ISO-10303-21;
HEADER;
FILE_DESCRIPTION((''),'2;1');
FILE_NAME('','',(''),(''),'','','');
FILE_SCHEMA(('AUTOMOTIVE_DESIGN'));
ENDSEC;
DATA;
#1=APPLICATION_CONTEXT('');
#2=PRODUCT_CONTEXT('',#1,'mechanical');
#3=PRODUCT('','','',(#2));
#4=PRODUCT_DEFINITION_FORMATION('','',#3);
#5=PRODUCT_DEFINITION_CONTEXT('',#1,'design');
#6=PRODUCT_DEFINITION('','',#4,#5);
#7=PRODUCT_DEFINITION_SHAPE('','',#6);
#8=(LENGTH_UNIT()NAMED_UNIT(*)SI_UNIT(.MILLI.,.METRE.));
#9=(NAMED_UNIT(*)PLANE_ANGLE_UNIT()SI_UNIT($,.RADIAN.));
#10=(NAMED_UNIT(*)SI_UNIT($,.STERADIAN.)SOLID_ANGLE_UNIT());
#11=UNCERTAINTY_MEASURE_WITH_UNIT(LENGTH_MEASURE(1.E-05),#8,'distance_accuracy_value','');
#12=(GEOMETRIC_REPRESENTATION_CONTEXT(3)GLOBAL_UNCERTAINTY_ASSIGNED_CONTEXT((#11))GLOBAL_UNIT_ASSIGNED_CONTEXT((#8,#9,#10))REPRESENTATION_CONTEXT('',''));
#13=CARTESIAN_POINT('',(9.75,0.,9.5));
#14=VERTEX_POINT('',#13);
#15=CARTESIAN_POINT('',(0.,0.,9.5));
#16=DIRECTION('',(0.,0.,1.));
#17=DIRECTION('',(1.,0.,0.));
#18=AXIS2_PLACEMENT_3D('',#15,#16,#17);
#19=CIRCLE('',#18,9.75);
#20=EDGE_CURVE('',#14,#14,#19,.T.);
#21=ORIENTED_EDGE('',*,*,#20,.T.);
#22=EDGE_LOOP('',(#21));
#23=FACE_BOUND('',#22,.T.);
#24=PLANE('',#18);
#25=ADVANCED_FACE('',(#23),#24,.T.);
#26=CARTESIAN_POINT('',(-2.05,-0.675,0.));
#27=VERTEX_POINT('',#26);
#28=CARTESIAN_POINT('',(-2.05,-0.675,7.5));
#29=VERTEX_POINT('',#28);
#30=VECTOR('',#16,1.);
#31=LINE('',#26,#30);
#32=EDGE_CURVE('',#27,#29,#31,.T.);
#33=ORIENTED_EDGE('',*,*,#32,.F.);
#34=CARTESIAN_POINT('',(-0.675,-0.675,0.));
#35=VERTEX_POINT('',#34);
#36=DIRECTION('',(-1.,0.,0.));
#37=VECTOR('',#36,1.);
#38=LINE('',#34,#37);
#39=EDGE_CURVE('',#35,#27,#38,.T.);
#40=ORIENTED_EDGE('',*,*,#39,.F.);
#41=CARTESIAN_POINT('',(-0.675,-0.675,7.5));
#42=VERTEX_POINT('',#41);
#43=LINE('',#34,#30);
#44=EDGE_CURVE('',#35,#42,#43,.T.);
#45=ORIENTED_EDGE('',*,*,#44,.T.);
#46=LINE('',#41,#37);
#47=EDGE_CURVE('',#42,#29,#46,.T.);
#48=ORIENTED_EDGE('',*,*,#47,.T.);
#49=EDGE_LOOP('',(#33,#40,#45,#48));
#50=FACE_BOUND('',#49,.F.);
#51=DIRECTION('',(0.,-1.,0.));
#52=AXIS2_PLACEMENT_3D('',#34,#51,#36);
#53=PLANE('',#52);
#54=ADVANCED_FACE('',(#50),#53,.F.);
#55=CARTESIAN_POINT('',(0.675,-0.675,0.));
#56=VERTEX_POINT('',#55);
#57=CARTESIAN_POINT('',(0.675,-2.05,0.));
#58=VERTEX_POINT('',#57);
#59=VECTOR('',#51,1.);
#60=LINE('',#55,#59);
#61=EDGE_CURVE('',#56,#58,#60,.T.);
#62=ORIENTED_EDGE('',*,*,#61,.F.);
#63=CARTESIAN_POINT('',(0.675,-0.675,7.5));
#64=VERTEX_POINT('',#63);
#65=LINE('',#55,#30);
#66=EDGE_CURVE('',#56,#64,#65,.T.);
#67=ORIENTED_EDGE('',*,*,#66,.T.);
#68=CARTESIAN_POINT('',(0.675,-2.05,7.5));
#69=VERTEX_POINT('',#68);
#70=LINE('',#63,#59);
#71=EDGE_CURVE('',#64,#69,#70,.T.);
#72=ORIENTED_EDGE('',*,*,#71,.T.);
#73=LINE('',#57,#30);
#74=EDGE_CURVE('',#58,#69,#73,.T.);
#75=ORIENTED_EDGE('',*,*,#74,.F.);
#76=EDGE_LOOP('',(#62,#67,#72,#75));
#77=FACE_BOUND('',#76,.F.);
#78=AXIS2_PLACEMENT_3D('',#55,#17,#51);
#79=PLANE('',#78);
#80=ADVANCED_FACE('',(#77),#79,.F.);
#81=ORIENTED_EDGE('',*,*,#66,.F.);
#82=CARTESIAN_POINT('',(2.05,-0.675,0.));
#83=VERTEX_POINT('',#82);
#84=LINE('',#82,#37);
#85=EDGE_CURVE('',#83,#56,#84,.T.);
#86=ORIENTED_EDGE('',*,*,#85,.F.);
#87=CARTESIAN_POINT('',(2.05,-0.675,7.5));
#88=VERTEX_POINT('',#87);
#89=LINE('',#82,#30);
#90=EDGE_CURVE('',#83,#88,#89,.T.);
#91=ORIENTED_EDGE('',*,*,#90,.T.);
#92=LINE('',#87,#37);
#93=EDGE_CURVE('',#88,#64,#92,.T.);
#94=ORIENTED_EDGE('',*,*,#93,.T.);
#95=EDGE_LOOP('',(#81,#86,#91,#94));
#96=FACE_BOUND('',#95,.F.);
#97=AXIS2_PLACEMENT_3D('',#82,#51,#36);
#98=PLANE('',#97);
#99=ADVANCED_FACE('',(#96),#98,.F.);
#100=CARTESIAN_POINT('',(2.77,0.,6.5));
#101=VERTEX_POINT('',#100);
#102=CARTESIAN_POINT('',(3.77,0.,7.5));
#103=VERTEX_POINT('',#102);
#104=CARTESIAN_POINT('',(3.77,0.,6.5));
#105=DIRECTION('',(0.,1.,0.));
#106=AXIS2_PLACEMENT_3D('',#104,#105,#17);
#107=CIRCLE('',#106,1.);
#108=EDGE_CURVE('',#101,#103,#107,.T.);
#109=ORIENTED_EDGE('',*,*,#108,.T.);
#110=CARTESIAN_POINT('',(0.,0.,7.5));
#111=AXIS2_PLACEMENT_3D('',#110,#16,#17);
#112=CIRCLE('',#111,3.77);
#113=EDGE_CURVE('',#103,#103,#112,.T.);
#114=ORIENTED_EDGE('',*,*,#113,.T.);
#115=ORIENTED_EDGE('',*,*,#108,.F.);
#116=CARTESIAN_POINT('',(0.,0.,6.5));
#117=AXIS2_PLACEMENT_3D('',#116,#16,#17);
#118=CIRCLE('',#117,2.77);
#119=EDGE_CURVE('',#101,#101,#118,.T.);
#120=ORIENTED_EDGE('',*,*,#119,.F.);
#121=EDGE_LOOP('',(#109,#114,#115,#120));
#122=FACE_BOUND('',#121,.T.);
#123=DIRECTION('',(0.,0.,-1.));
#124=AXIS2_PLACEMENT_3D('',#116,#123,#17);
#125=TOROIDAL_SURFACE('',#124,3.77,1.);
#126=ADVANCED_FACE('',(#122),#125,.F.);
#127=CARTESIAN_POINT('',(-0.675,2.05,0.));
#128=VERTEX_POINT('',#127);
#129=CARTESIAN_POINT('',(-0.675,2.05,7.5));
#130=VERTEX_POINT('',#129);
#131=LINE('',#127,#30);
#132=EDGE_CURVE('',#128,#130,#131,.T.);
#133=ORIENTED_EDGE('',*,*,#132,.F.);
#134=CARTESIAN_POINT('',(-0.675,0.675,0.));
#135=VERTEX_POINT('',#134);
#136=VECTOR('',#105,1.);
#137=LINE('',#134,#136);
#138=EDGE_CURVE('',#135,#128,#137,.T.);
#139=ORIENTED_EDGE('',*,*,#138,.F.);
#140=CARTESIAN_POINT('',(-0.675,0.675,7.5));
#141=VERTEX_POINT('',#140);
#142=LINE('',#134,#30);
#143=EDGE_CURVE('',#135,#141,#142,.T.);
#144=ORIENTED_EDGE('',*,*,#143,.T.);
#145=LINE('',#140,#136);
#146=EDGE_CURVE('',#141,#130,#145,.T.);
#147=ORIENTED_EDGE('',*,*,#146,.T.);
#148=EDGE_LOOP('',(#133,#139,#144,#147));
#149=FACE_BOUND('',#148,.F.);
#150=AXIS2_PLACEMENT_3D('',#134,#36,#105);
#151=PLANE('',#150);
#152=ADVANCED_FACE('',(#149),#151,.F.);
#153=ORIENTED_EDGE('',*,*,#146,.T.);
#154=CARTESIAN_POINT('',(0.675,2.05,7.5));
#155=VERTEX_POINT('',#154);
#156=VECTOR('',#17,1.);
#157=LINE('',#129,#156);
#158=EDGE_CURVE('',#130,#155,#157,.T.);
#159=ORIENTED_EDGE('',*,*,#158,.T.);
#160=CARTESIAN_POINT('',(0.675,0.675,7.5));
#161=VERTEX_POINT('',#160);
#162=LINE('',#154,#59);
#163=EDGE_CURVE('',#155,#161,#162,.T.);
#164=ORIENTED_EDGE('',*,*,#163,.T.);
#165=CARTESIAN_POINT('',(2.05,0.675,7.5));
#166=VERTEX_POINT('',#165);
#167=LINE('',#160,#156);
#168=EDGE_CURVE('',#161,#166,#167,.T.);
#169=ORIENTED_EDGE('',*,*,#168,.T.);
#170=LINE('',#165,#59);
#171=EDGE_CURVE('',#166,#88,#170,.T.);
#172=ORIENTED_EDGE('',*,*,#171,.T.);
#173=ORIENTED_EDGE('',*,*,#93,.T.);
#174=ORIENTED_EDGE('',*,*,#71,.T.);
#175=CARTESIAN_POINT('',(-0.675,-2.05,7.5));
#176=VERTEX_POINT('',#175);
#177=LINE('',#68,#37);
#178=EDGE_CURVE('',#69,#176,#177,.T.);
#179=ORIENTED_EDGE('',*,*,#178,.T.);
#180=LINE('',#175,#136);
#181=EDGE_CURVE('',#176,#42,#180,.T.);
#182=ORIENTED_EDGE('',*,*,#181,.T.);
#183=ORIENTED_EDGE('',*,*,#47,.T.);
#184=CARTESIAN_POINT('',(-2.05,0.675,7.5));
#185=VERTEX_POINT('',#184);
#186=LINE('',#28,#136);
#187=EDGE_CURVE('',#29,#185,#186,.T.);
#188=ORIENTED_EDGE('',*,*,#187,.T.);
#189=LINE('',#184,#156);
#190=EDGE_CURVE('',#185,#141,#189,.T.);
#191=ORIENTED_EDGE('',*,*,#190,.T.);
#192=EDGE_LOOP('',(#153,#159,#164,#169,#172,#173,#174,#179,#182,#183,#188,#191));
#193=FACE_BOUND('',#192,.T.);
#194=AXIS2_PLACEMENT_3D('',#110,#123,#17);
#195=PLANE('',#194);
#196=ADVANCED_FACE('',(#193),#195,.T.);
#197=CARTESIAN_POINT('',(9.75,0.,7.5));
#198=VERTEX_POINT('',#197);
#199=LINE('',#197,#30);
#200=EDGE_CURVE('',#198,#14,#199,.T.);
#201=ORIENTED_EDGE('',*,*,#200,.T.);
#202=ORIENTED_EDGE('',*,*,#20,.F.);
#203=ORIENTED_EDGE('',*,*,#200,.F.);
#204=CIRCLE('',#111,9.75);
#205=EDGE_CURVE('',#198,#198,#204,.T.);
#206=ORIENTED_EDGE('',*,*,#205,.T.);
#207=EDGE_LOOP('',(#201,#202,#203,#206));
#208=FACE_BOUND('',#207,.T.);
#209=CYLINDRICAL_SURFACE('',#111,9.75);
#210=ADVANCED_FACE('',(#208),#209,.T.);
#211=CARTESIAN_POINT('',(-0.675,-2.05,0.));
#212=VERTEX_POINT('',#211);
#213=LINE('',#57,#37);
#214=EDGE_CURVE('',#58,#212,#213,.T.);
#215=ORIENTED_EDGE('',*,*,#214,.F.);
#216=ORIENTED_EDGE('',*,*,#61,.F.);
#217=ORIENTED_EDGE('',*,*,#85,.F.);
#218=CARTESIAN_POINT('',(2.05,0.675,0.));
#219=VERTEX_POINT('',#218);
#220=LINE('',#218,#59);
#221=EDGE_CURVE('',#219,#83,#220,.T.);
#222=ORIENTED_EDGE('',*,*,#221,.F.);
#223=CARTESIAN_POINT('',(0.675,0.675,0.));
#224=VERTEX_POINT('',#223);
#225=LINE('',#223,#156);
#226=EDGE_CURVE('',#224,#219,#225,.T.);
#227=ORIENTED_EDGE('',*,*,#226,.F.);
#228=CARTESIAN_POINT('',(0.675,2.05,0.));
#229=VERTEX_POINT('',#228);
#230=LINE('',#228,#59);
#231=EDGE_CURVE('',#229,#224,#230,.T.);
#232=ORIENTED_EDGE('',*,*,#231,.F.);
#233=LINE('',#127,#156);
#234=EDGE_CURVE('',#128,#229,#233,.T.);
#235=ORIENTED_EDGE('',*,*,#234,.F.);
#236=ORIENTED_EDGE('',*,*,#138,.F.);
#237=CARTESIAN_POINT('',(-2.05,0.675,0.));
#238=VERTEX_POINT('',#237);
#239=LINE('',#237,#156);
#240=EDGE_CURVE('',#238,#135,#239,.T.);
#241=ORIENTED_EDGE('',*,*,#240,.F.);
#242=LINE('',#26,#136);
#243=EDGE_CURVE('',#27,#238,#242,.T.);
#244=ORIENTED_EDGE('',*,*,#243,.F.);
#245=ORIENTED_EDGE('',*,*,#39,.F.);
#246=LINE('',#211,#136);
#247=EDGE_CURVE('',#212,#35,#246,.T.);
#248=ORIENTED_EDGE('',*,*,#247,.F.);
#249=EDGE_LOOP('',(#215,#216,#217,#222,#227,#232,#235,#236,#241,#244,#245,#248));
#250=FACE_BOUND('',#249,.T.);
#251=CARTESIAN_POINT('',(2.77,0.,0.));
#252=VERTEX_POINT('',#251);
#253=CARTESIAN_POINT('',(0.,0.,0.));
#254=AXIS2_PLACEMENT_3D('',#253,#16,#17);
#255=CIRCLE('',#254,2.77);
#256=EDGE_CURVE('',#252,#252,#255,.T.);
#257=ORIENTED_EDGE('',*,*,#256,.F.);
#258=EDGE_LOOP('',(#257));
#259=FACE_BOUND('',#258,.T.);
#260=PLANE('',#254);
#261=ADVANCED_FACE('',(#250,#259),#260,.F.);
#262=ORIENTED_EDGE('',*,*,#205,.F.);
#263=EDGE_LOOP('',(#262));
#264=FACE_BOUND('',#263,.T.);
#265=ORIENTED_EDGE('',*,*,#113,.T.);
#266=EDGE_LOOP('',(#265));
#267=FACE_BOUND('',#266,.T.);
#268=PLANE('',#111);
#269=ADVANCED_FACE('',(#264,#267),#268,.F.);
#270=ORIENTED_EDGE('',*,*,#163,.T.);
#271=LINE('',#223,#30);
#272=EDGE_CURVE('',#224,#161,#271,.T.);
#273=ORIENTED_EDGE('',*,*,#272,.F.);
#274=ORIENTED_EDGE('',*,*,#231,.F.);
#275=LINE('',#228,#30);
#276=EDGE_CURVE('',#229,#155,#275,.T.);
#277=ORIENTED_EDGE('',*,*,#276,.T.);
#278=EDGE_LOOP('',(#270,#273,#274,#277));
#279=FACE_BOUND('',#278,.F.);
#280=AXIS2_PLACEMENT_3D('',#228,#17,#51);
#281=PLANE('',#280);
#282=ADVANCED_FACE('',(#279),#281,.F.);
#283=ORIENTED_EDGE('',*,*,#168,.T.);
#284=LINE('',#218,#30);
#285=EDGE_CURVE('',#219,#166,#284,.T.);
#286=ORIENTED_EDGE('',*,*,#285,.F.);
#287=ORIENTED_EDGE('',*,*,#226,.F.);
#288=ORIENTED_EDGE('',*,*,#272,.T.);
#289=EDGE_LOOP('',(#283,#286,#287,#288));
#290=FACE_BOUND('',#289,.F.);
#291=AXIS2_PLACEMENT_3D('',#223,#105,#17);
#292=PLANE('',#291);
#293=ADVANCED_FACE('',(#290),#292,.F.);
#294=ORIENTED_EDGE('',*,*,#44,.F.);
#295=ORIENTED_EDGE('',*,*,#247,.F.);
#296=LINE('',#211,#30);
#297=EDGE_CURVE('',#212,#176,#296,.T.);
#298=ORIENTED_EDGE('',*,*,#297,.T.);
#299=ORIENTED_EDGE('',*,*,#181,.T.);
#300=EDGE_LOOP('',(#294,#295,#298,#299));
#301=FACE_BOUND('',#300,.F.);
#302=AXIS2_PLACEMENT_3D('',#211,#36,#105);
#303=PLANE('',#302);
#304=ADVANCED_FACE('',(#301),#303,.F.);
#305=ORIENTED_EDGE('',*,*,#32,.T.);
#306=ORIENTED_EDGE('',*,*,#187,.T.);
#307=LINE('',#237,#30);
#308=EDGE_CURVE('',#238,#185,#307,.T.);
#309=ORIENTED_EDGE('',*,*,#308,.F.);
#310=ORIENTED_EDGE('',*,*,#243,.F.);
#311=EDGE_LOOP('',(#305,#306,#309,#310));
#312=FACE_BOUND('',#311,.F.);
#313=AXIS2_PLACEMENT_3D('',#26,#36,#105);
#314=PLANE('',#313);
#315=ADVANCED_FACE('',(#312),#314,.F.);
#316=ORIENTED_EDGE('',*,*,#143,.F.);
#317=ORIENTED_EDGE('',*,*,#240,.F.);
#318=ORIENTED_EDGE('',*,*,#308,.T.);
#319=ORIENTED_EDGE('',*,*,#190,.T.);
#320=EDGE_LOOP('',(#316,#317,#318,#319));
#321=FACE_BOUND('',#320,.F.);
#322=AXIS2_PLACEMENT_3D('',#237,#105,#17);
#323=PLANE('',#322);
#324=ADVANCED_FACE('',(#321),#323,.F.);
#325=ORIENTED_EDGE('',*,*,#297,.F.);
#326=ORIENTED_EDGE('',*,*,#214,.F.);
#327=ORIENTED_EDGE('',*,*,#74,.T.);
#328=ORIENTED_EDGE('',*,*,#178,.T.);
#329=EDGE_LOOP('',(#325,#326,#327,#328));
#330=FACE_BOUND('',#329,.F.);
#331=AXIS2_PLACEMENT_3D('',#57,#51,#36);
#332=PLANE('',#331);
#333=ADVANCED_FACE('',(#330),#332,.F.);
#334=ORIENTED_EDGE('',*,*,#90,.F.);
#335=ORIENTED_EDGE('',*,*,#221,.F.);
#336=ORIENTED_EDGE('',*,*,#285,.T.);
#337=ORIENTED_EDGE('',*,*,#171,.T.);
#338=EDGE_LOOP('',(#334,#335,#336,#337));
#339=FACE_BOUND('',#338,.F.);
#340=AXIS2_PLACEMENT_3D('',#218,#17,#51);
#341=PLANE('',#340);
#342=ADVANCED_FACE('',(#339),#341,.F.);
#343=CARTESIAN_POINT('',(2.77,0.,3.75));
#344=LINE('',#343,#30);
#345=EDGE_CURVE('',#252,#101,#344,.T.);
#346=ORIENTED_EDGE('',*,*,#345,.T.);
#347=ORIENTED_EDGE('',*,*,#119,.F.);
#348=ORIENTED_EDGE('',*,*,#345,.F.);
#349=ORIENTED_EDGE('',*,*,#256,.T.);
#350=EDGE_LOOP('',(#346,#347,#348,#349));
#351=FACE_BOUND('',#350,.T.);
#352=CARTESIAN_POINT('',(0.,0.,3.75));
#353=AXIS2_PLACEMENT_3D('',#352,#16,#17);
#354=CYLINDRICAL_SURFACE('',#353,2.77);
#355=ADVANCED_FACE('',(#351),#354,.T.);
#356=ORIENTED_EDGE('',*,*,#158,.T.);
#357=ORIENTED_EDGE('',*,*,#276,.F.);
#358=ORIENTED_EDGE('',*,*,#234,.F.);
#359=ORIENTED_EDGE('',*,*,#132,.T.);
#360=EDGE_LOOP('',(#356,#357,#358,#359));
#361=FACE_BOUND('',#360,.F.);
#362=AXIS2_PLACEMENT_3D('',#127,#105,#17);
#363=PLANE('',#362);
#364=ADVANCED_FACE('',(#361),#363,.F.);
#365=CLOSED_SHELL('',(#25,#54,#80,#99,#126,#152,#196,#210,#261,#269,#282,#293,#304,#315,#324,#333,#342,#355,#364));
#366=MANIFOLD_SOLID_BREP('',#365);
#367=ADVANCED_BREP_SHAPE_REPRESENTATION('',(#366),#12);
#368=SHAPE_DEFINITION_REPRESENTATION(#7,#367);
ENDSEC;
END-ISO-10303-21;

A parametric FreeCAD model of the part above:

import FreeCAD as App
import Part
import Sketcher

V = App.Vector


def edges_at(feature, points):
    """Names of the edges that pass closest to the given points."""
    edges = feature.Shape.Edges
    near = lambda p: min(range(len(edges)), key=lambda i: edges[i].distToShape(Part.Vertex(*p))[0])
    return sorted({f"Edge{near(p) + 1}" for p in points})

doc = App.newDocument("Part")
body = doc.addObject("PartDesign::Body", "Body")

# Sketch on XZ plane
sketch1 = body.newObject("Sketcher::SketchObject", "Sketch")
sketch1.AttachmentSupport = (doc.getObject("XZ_Plane"), [""])
sketch1.MapMode = "FlatFace"
sketch1.addGeometry(Part.LineSegment(V(0, 9.5, 0), V(0, 0, 0)), False)
sketch1.addGeometry(Part.LineSegment(V(0, 0, 0), V(2.77, 0, 0)), False)
sketch1.addGeometry(Part.LineSegment(V(2.77, 0, 0), V(2.77, 7.5, 0)), False)
sketch1.addGeometry(Part.LineSegment(V(2.77, 7.5, 0), V(9.75, 7.5, 0)), False)
sketch1.addGeometry(Part.LineSegment(V(9.75, 7.5, 0), V(9.75, 9.5, 0)), False)
sketch1.addGeometry(Part.LineSegment(V(9.75, 9.5, 0), V(0, 9.5, 0)), False)
sketch1.addConstraint(Sketcher.Constraint("Coincident", 0, 2, 1, 1))
sketch1.addConstraint(Sketcher.Constraint("Coincident", 1, 2, 2, 1))
sketch1.addConstraint(Sketcher.Constraint("Coincident", 2, 2, 3, 1))
sketch1.addConstraint(Sketcher.Constraint("Coincident", 3, 2, 4, 1))
sketch1.addConstraint(Sketcher.Constraint("Coincident", 4, 2, 5, 1))
sketch1.addConstraint(Sketcher.Constraint("Coincident", 5, 2, 0, 1))
sketch1.addConstraint(Sketcher.Constraint("Vertical", 0))
sketch1.addConstraint(Sketcher.Constraint("Horizontal", 1))
sketch1.addConstraint(Sketcher.Constraint("Vertical", 2))
sketch1.addConstraint(Sketcher.Constraint("Horizontal", 3))
sketch1.addConstraint(Sketcher.Constraint("Vertical", 4))
sketch1.addConstraint(Sketcher.Constraint("Horizontal", 5))
sketch1.addConstraint(Sketcher.Constraint("Coincident", 0, 2, -1, 1))
sketch1.addConstraint(Sketcher.Constraint("DistanceY", 4, 1, 4, 2, 2.0))
sketch1.addConstraint(Sketcher.Constraint("DistanceY", 0, 2, 0, 1, 9.5))
sketch1.addConstraint(Sketcher.Constraint("DistanceX", 1, 1, 1, 2, 2.77))
sketch1.addConstraint(Sketcher.Constraint("DistanceX", 3, 1, 3, 2, 6.98))
revolution = body.newObject("PartDesign::Revolution", "Revolution")
revolution.Profile = sketch1
revolution.ReferenceAxis = (sketch1, ["V_Axis"])
revolution.Angle = 360

# Sketch on XY plane
sketch2 = body.newObject("Sketcher::SketchObject", "Sketch001")
sketch2.AttachmentSupport = (doc.getObject("XY_Plane"), [""])
sketch2.MapMode = "FlatFace"
sketch2.addGeometry(Part.LineSegment(V(0.675, -2.05, 0), V(-0.675, -2.05, 0)), False)
sketch2.addGeometry(Part.LineSegment(V(-0.675, -2.05, 0), V(-0.675, -0.675, 0)), False)
sketch2.addGeometry(Part.LineSegment(V(-0.675, -0.675, 0), V(-2.05, -0.675, 0)), False)
sketch2.addGeometry(Part.LineSegment(V(-2.05, -0.675, 0), V(-2.05, 0.675, 0)), False)
sketch2.addGeometry(Part.LineSegment(V(-2.05, 0.675, 0), V(-0.675, 0.675, 0)), False)
sketch2.addGeometry(Part.LineSegment(V(-0.675, 0.675, 0), V(-0.675, 2.05, 0)), False)
sketch2.addGeometry(Part.LineSegment(V(-0.675, 2.05, 0), V(0.675, 2.05, 0)), False)
sketch2.addGeometry(Part.LineSegment(V(0.675, 2.05, 0), V(0.675, 0.675, 0)), False)
sketch2.addGeometry(Part.LineSegment(V(0.675, 0.675, 0), V(2.05, 0.675, 0)), False)
sketch2.addGeometry(Part.LineSegment(V(2.05, 0.675, 0), V(2.05, -0.675, 0)), False)
sketch2.addGeometry(Part.LineSegment(V(2.05, -0.675, 0), V(0.675, -0.675, 0)), False)
sketch2.addGeometry(Part.LineSegment(V(0.675, -0.675, 0), V(0.675, -2.05, 0)), False)
sketch2.addConstraint(Sketcher.Constraint("Coincident", 0, 2, 1, 1))
sketch2.addConstraint(Sketcher.Constraint("Coincident", 1, 2, 2, 1))
sketch2.addConstraint(Sketcher.Constraint("Coincident", 2, 2, 3, 1))
sketch2.addConstraint(Sketcher.Constraint("Coincident", 3, 2, 4, 1))
sketch2.addConstraint(Sketcher.Constraint("Coincident", 4, 2, 5, 1))
sketch2.addConstraint(Sketcher.Constraint("Coincident", 5, 2, 6, 1))
sketch2.addConstraint(Sketcher.Constraint("Coincident", 6, 2, 7, 1))
sketch2.addConstraint(Sketcher.Constraint("Coincident", 7, 2, 8, 1))
sketch2.addConstraint(Sketcher.Constraint("Coincident", 8, 2, 9, 1))
sketch2.addConstraint(Sketcher.Constraint("Coincident", 9, 2, 10, 1))
sketch2.addConstraint(Sketcher.Constraint("Coincident", 10, 2, 11, 1))
sketch2.addConstraint(Sketcher.Constraint("Coincident", 11, 2, 0, 1))
sketch2.addConstraint(Sketcher.Constraint("Horizontal", 0))
sketch2.addConstraint(Sketcher.Constraint("Vertical", 1))
sketch2.addConstraint(Sketcher.Constraint("Horizontal", 2))
sketch2.addConstraint(Sketcher.Constraint("Vertical", 3))
sketch2.addConstraint(Sketcher.Constraint("Horizontal", 4))
sketch2.addConstraint(Sketcher.Constraint("Vertical", 5))
sketch2.addConstraint(Sketcher.Constraint("Horizontal", 6))
sketch2.addConstraint(Sketcher.Constraint("Vertical", 7))
sketch2.addConstraint(Sketcher.Constraint("Horizontal", 8))
sketch2.addConstraint(Sketcher.Constraint("Vertical", 9))
sketch2.addConstraint(Sketcher.Constraint("Horizontal", 10))
sketch2.addConstraint(Sketcher.Constraint("Vertical", 11))
sketch2.addConstraint(Sketcher.Constraint("Symmetric", 0, 2, 6, 2, -1, 1))
sketch2.addConstraint(Sketcher.Constraint("Symmetric", 2, 2, 8, 2, -1, 1))
sketch2.addConstraint(Sketcher.Constraint("Symmetric", 4, 2, 10, 2, -1, 1))
sketch2.addConstraint(Sketcher.Constraint("Symmetric", 4, 2, 7, 2, -2))
sketch2.addConstraint(Sketcher.Constraint("Equal", 10, 1))
sketch2.addConstraint(Sketcher.Constraint("Equal", 6, 3))
sketch2.addConstraint(Sketcher.Constraint("DistanceX", 0, 2, 0, 1, 1.35))
sketch2.addConstraint(Sketcher.Constraint("DistanceY", 0, 2, 5, 2, 4.1))
pocket1 = body.newObject("PartDesign::Pocket", "Pocket")
pocket1.Profile = sketch2
pocket1.Length = 7.5
pocket1.Reversed = True
doc.recompute()

fillet = body.newObject("PartDesign::Fillet", "Fillet")
fillet.Base = (pocket1, edges_at(pocket1, [(-2.77, 0, 7.5)]))
fillet.Radius = 1

doc.recompute()
